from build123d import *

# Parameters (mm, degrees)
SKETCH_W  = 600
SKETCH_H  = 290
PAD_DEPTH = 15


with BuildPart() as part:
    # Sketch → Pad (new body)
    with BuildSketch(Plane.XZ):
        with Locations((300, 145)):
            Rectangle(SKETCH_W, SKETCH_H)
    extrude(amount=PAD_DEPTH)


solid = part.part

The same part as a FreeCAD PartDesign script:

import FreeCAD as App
import Part
import Sketcher
from FreeCAD import Vector
Q = App.Units.Quantity

doc = App.newDocument("Part")
body = doc.addObject("PartDesign::Body", "Body")

sketch1 = doc.addObject("Sketcher::SketchObject", "Sketch")
body.addObject(sketch1)
sketch1.AttachmentSupport = (doc.XZ_Plane, [""])
sketch1.MapMode = "FlatFace"
sketch1.addGeometry([
    Part.LineSegment(Vector(0, 290, 0), Vector(0, 0, 0)),
    Part.LineSegment(Vector(0, 0, 0), Vector(600, 0, 0)),
    Part.LineSegment(Vector(600, 0, 0), Vector(600, 290, 0)),
    Part.LineSegment(Vector(600, 290, 0), Vector(0, 290, 0)),
], False)
sketch1.addConstraint([
    Sketcher.Constraint("Coincident", 0, 2, 1, 1),
    Sketcher.Constraint("Coincident", 1, 2, 2, 1),
    Sketcher.Constraint("Coincident", 2, 2, 3, 1),
    Sketcher.Constraint("Coincident", 3, 2, 0, 1),
    Sketcher.Constraint("Vertical", 0),
    Sketcher.Constraint("Horizontal", 1),
    Sketcher.Constraint("Vertical", 2),
    Sketcher.Constraint("Horizontal", 3),
    Sketcher.Constraint("Coincident", 0, 2, -1, 1),
    Sketcher.Constraint("DistanceX", 1, 1, 1, 2, Q("600 mm")),
    Sketcher.Constraint("DistanceY", 0, 2, 0, 1, Q("290 mm")),
])
pad1 = doc.addObject("PartDesign::Pad", "Pad")
body.addObject(pad1)
pad1.Profile = sketch1
pad1.Length = 15

doc.recompute()
